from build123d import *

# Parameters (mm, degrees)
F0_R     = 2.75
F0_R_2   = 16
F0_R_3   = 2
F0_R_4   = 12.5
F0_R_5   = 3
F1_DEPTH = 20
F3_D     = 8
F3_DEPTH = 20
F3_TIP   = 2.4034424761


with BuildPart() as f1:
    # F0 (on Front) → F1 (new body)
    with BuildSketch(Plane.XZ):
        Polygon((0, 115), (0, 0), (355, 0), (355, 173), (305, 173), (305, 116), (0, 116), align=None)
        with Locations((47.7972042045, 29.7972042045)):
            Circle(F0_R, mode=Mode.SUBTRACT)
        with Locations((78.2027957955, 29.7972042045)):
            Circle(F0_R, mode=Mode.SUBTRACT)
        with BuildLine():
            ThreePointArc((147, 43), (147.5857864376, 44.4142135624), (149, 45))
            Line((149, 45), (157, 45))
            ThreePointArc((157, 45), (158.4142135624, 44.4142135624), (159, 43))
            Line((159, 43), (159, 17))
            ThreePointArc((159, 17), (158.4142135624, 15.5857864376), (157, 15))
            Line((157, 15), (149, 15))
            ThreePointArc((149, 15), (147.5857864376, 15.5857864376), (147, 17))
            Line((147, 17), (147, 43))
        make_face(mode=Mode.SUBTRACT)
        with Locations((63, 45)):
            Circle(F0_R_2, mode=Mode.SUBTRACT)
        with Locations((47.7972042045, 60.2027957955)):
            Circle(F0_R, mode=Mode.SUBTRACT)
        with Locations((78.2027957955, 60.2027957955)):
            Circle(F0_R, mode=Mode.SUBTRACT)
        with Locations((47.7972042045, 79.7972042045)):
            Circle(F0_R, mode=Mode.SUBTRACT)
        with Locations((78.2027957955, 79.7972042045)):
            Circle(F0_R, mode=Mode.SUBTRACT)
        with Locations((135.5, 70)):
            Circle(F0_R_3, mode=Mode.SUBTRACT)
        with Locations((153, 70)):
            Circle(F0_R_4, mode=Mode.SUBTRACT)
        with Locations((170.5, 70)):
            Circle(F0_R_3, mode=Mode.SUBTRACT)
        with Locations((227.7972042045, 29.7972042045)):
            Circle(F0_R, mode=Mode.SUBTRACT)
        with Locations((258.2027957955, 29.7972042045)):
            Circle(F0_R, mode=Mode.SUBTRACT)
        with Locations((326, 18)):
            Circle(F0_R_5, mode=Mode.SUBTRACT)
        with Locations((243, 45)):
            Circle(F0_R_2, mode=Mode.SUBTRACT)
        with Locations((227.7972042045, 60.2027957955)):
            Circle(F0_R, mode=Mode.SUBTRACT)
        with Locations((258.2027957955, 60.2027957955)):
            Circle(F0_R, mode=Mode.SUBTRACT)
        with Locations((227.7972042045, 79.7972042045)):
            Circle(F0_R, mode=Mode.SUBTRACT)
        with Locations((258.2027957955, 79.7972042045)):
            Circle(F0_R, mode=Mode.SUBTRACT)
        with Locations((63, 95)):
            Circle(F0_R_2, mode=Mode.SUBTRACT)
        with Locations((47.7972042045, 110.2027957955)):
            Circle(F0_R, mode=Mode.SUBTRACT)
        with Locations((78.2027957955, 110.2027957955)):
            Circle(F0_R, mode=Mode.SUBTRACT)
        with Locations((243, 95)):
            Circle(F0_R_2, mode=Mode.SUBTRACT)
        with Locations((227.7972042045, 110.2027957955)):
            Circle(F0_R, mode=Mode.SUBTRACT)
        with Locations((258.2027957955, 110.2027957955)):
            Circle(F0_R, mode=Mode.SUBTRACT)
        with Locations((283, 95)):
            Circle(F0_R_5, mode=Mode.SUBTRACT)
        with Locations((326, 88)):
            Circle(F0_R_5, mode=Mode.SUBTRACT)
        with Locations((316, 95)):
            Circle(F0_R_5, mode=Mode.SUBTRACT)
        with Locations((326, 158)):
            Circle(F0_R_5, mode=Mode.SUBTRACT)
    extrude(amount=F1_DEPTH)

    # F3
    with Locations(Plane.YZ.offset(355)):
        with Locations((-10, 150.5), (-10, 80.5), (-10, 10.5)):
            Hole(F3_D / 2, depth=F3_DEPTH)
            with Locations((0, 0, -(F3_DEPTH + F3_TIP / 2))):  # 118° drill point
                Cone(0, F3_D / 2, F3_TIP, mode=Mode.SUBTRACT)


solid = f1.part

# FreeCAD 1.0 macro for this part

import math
import FreeCAD as App
import Part
import Sketcher
from FreeCAD import Vector

doc = App.newDocument("Part")
params = doc.addObject("Spreadsheet::Sheet", "Params")
for row, (alias, value) in enumerate([
    ("sketch1_diameter", "32 mm"),
    ("sketch1_diameter2", "4 mm"),
    ("sketch1_diameter3", "25 mm"),
    ("sketch1_diameter4", "6 mm"),
    ("sketch1_diameter5", "5.5 mm"),
    ("pad1_length", "20 mm"),
    ("sketch2_diameter", "8 mm"),
    ("hole_diameter", "8 mm"),
    ("hole_depth", "20 mm"),
], start=1):
    params.set(f"A{row}", alias)
    params.set(f"B{row}", "=" + value)
    params.setAlias(f"B{row}", alias)

body = doc.addObject("PartDesign::Body", "Body")

# Sketch on XZ plane
sketch1 = body.newObject("Sketcher::SketchObject", "Sketch")
sketch1.AttachmentSupport = (doc.getObject("XZ_Plane"), [""])
sketch1.MapMode = "FlatFace"
sketch1.addGeometry(Part.LineSegment(Vector(0, 0, 0), Vector(355, 0, 0)), False)
sketch1.addGeometry(Part.LineSegment(Vector(355, 0, 0), Vector(355, 173, 0)), False)
sketch1.addGeometry(Part.LineSegment(Vector(355, 173, 0), Vector(305, 173, 0)), False)
sketch1.addGeometry(Part.LineSegment(Vector(305, 173, 0), Vector(305, 116, 0)), False)
sketch1.addGeometry(Part.LineSegment(Vector(305, 116, 0), Vector(0, 116, 0)), False)
sketch1.addGeometry(Part.LineSegment(Vector(0, 116, 0), Vector(0, 0, 0)), False)
sketch1.addGeometry(Part.Circle(Vector(47.797204, 29.797204, 0), Vector(0, 0, 1), 2.75), False)
sketch1.addGeometry(Part.Circle(Vector(78.202796, 29.797204, 0), Vector(0, 0, 1), 2.75), False)
sketch1.addGeometry(Part.Circle(Vector(63, 45, 0), Vector(0, 0, 1), 16), False)
sketch1.addGeometry(Part.LineSegment(Vector(147, 17, 0), Vector(147, 43, 0)), False)
sketch1.addGeometry(Part.ArcOfCircle(Part.Circle(Vector(149, 43, 0), Vector(0, 0, 1), 2), math.radians(90), math.radians(180)), False)
sketch1.addGeometry(Part.LineSegment(Vector(149, 45, 0), Vector(157, 45, 0)), False)
sketch1.addGeometry(Part.ArcOfCircle(Part.Circle(Vector(157, 43, 0), Vector(0, 0, 1), 2), math.radians(0), math.radians(90)), False)
sketch1.addGeometry(Part.LineSegment(Vector(159, 43, 0), Vector(159, 17, 0)), False)
sketch1.addGeometry(Part.ArcOfCircle(Part.Circle(Vector(157, 17, 0), Vector(0, 0, 1), 2), math.radians(-90), math.radians(0)), False)
sketch1.addGeometry(Part.LineSegment(Vector(157, 15, 0), Vector(149, 15, 0)), False)
sketch1.addGeometry(Part.ArcOfCircle(Part.Circle(Vector(149, 17, 0), Vector(0, 0, 1), 2), math.radians(180), math.radians(270)), False)
sketch1.addGeometry(Part.Circle(Vector(47.797204, 60.202796, 0), Vector(0, 0, 1), 2.75), False)
sketch1.addGeometry(Part.Circle(Vector(78.202796, 60.202796, 0), Vector(0, 0, 1), 2.75), False)
sketch1.addGeometry(Part.Circle(Vector(47.797204, 79.797204, 0), Vector(0, 0, 1), 2.75), False)
sketch1.addGeometry(Part.Circle(Vector(78.202796, 79.797204, 0), Vector(0, 0, 1), 2.75), False)
sketch1.addGeometry(Part.Circle(Vector(135.5, 70, 0), Vector(0, 0, 1), 2), False)
sketch1.addGeometry(Part.Circle(Vector(153, 70, 0), Vector(0, 0, 1), 12.5), False)
sketch1.addGeometry(Part.Circle(Vector(170.5, 70, 0), Vector(0, 0, 1), 2), False)
sketch1.addGeometry(Part.Circle(Vector(227.797204, 29.797204, 0), Vector(0, 0, 1), 2.75), False)
sketch1.addGeometry(Part.Circle(Vector(243, 45, 0), Vector(0, 0, 1), 16), False)
sketch1.addGeometry(Part.Circle(Vector(258.202796, 29.797204, 0), Vector(0, 0, 1), 2.75), False)
sketch1.addGeometry(Part.Circle(Vector(326, 18, 0), Vector(0, 0, 1), 3), False)
sketch1.addGeometry(Part.Circle(Vector(227.797204, 60.202796, 0), Vector(0, 0, 1), 2.75), False)
sketch1.addGeometry(Part.Circle(Vector(227.797204, 79.797204, 0), Vector(0, 0, 1), 2.75), False)
sketch1.addGeometry(Part.Circle(Vector(258.202796, 60.202796, 0), Vector(0, 0, 1), 2.75), False)
sketch1.addGeometry(Part.Circle(Vector(258.202796, 79.797204, 0), Vector(0, 0, 1), 2.75), False)
sketch1.addGeometry(Part.Circle(Vector(63, 95, 0), Vector(0, 0, 1), 16), False)
sketch1.addGeometry(Part.Circle(Vector(47.797204, 110.202796, 0), Vector(0, 0, 1), 2.75), False)
sketch1.addGeometry(Part.Circle(Vector(78.202796, 110.202796, 0), Vector(0, 0, 1), 2.75), False)
sketch1.addGeometry(Part.Circle(Vector(243, 95, 0), Vector(0, 0, 1), 16), False)
sketch1.addGeometry(Part.Circle(Vector(227.797204, 110.202796, 0), Vector(0, 0, 1), 2.75), False)
sketch1.addGeometry(Part.Circle(Vector(283, 95, 0), Vector(0, 0, 1), 3), False)
sketch1.addGeometry(Part.Circle(Vector(326, 88, 0), Vector(0, 0, 1), 3), False)
sketch1.addGeometry(Part.Circle(Vector(316, 95, 0), Vector(0, 0, 1), 3), False)
sketch1.addGeometry(Part.Circle(Vector(258.202796, 110.202796, 0), Vector(0, 0, 1), 2.75), False)
sketch1.addGeometry(Part.Circle(Vector(326, 158, 0), Vector(0, 0, 1), 3), False)
sketch1.addConstraint(Sketcher.Constraint("Coincident", 0, 2, 1, 1))
sketch1.addConstraint(Sketcher.Constraint("Coincident", 1, 2, 2, 1))
sketch1.addConstraint(Sketcher.Constraint("Coincident", 2, 2, 3, 1))
sketch1.addConstraint(Sketcher.Constraint("Coincident", 3, 2, 4, 1))
sketch1.addConstraint(Sketcher.Constraint("Coincident", 4, 2, 5, 1))
sketch1.addConstraint(Sketcher.Constraint("Coincident", 5, 2, 0, 1))
sketch1.addConstraint(Sketcher.Constraint("Tangent", 9, 2, 10, 2))
sketch1.addConstraint(Sketcher.Constraint("Tangent", 10, 1, 11, 1))
sketch1.addConstraint(Sketcher.Constraint("Tangent", 11, 2, 12, 2))
sketch1.addConstraint(Sketcher.Constraint("Tangent", 12, 1, 13, 1))
sketch1.addConstraint(Sketcher.Constraint("Tangent", 13, 2, 14, 2))
sketch1.addConstraint(Sketcher.Constraint("Tangent", 14, 1, 15, 1))
sketch1.addConstraint(Sketcher.Constraint("Tangent", 15, 2, 16, 2))
sketch1.addConstraint(Sketcher.Constraint("Tangent", 16, 1, 9, 1))
sketch1.addConstraint(Sketcher.Constraint("Horizontal", 0))
sketch1.addConstraint(Sketcher.Constraint("Vertical", 1))
sketch1.addConstraint(Sketcher.Constraint("Horizontal", 2))
sketch1.addConstraint(Sketcher.Constraint("Vertical", 3))
sketch1.addConstraint(Sketcher.Constraint("Horizontal", 4))
sketch1.addConstraint(Sketcher.Constraint("Vertical", 5))
sketch1.addConstraint(Sketcher.Constraint("Vertical", 9))
sketch1.addConstraint(Sketcher.Constraint("Horizontal", 11))
sketch1.addConstraint(Sketcher.Constraint("Vertical", 13))
sketch1.addConstraint(Sketcher.Constraint("Horizontal", 15))
sketch1.addConstraint(Sketcher.Constraint("Coincident", 5, 2, -1, 1))
sketch1.addConstraint(Sketcher.Constraint("Equal", 6, 7))
sketch1.addConstraint(Sketcher.Constraint("Equal", 10, 12))
sketch1.addConstraint(Sketcher.Constraint("Equal", 12, 14))
sketch1.addConstraint(Sketcher.Constraint("Equal", 14, 16))
sketch1.addConstraint(Sketcher.Constraint("Equal", 7, 17))
sketch1.addConstraint(Sketcher.Constraint("Equal", 17, 18))
sketch1.addConstraint(Sketcher.Constraint("Equal", 18, 19))
sketch1.addConstraint(Sketcher.Constraint("Equal", 19, 20))
sketch1.addConstraint(Sketcher.Constraint("Equal", 16, 21))
sketch1.addConstraint(Sketcher.Constraint("Equal", 21, 23))
sketch1.addConstraint(Sketcher.Constraint("Equal", 20, 24))
sketch1.addConstraint(Sketcher.Constraint("Equal", 8, 25))
sketch1.addConstraint(Sketcher.Constraint("Equal", 24, 26))
sketch1.addConstraint(Sketcher.Constraint("Equal", 26, 28))
sketch1.addConstraint(Sketcher.Constraint("Equal", 28, 29))
sketch1.addConstraint(Sketcher.Constraint("Equal", 29, 30))
sketch1.addConstraint(Sketcher.Constraint("Equal", 30, 31))
sketch1.addConstraint(Sketcher.Constraint("Equal", 25, 32))
sketch1.addConstraint(Sketcher.Constraint("Equal", 31, 33))
sketch1.addConstraint(Sketcher.Constraint("Equal", 33, 34))
sketch1.addConstraint(Sketcher.Constraint("Equal", 32, 35))
sketch1.addConstraint(Sketcher.Constraint("Equal", 34, 36))
sketch1.addConstraint(Sketcher.Constraint("Equal", 27, 37))
sketch1.addConstraint(Sketcher.Constraint("Equal", 37, 38))
sketch1.addConstraint(Sketcher.Constraint("Equal", 38, 39))
sketch1.addConstraint(Sketcher.Constraint("Equal", 36, 40))
sketch1.addConstraint(Sketcher.Constraint("Equal", 39, 41))
sketch1.addConstraint(Sketcher.Constraint("Horizontal", 6, 3, 7, 3))
sketch1.addConstraint(Sketcher.Constraint("Horizontal", 17, 3, 18, 3))
sketch1.addConstraint(Sketcher.Constraint("Horizontal", 19, 3, 20, 3))
sketch1.addConstraint(Sketcher.Constraint("Horizontal", 21, 3, 22, 3))
sketch1.addConstraint(Sketcher.Constraint("Horizontal", 22, 3, 23, 3))
sketch1.addConstraint(Sketcher.Constraint("Horizontal", 7, 3, 24, 3))
sketch1.addConstraint(Sketcher.Constraint("Horizontal", 8, 3, 25, 3))
sketch1.addConstraint(Sketcher.Constraint("Horizontal", 24, 3, 26, 3))
sketch1.addConstraint(Sketcher.Constraint("Horizontal", 18, 3, 28, 3))
sketch1.addConstraint(Sketcher.Constraint("Horizontal", 20, 3, 29, 3))
sketch1.addConstraint(Sketcher.Constraint("Horizontal", 28, 3, 30, 3))
sketch1.addConstraint(Sketcher.Constraint("Horizontal", 29, 3, 31, 3))
sketch1.addConstraint(Sketcher.Constraint("Horizontal", 33, 3, 34, 3))
sketch1.addConstraint(Sketcher.Constraint("Horizontal", 32, 3, 35, 3))
sketch1.addConstraint(Sketcher.Constraint("Horizontal", 34, 3, 36, 3))
sketch1.addConstraint(Sketcher.Constraint("Horizontal", 35, 3, 37, 3))
sketch1.addConstraint(Sketcher.Constraint("Horizontal", 37, 3, 39, 3))
sketch1.addConstraint(Sketcher.Constraint("Horizontal", 36, 3, 40, 3))
sketch1.addConstraint(Sketcher.Constraint("Horizontal", 25, 3, 10, 1))
sketch1.addConstraint(Sketcher.Constraint("Vertical", 6, 3, 17, 3))
sketch1.addConstraint(Sketcher.Constraint("Vertical", 7, 3, 18, 3))
sketch1.addConstraint(Sketcher.Constraint("Vertical", 17, 3, 19, 3))
sketch1.addConstraint(Sketcher.Constraint("Vertical", 18, 3, 20, 3))
sketch1.addConstraint(Sketcher.Constraint("Vertical", 24, 3, 28, 3))
sketch1.addConstraint(Sketcher.Constraint("Vertical", 28, 3, 29, 3))
sketch1.addConstraint(Sketcher.Constraint("Vertical", 26, 3, 30, 3))
sketch1.addConstraint(Sketcher.Constraint("Vertical", 30, 3, 31, 3))
sketch1.addConstraint(Sketcher.Constraint("Vertical", 8, 3, 32, 3))
sketch1.addConstraint(Sketcher.Constraint("Vertical", 19, 3, 33, 3))
sketch1.addConstraint(Sketcher.Constraint("Vertical", 20, 3, 34, 3))
sketch1.addConstraint(Sketcher.Constraint("Vertical", 25, 3, 35, 3))
sketch1.addConstraint(Sketcher.Constraint("Vertical", 29, 3, 36, 3))
sketch1.addConstraint(Sketcher.Constraint("Vertical", 27, 3, 38, 3))
sketch1.addConstraint(Sketcher.Constraint("Vertical", 31, 3, 40, 3))
sketch1.addConstraint(Sketcher.Constraint("Vertical", 38, 3, 41, 3))
sketch1.addConstraint(Sketcher.Constraint("Diameter", 8, 32.0))
sketch1.addConstraint(Sketcher.Constraint("Diameter", 21, 4.0))
sketch1.addConstraint(Sketcher.Constraint("Diameter", 22, 25.0))
sketch1.addConstraint(Sketcher.Constraint("Diameter", 27, 6.0))
sketch1.addConstraint(Sketcher.Constraint("Diameter", 6, 5.5))
sketch1.addConstraint(Sketcher.Constraint("DistanceX", 0, 1, 0, 2, 355.0))
sketch1.addConstraint(Sketcher.Constraint("DistanceX", 2, 2, 2, 1, 50.0))
sketch1.addConstraint(Sketcher.Constraint("DistanceX", 11, 1, 11, 2, 8.0))
sketch1.addConstraint(Sketcher.Constraint("DistanceY", 1, 1, 1, 2, 173.0))
sketch1.addConstraint(Sketcher.Constraint("DistanceY", 3, 2, 3, 1, 57.0))
sketch1.addConstraint(Sketcher.Constraint("DistanceY", 9, 1, 9, 2, 26.0))
sketch1.addConstraint(Sketcher.Constraint("DistanceX", -1, 1, 8, 3, 63.0))
sketch1.addConstraint(Sketcher.Constraint("DistanceY", -1, 1, 8, 3, 45.0))
sketch1.addConstraint(Sketcher.Constraint("DistanceX", -1, 1, 10, 3, 149.0))
sketch1.addConstraint(Sketcher.Constraint("DistanceY", -1, 1, 21, 3, 70.0))
sketch1.addConstraint(Sketcher.Constraint("DistanceX", -1, 1, 22, 3, 153.0))
sketch1.addConstraint(Sketcher.Constraint("DistanceX", -1, 1, 25, 3, 243.0))
sketch1.addConstraint(Sketcher.Constraint("DistanceX", -1, 1, 27, 3, 326.0))
sketch1.addConstraint(Sketcher.Constraint("DistanceY", -1, 1, 27, 3, 18.0))
sketch1.addConstraint(Sketcher.Constraint("DistanceY", -1, 1, 32, 3, 95.0))
sketch1.addConstraint(Sketcher.Constraint("DistanceX", -1, 1, 37, 3, 283.0))
sketch1.addConstraint(Sketcher.Constraint("DistanceY", -1, 1, 38, 3, 88.0))
sketch1.addConstraint(Sketcher.Constraint("DistanceX", -1, 1, 39, 3, 316.0))
sketch1.addConstraint(Sketcher.Constraint("DistanceY", -1, 1, 41, 3, 158.0))
sketch1.addConstraint(Sketcher.Constraint("DistanceY", 6, 3, 19, 3, 50.0))
sketch1.addConstraint(Sketcher.Constraint("DistanceX", 21, 3, 23, 3, 35.0))
sketch1.addConstraint(Sketcher.Constraint("DistanceY", 17, 3, 33, 3, 50.0))
sketch1.addConstraint(Sketcher.Constraint("DistanceX", -1, 1, 21, 3, 135.5))
sketch1.addConstraint(Sketcher.Constraint("DistanceX", 6, 3, 7, 3, 30.405592))
sketch1.addConstraint(Sketcher.Constraint("DistanceY", 6, 3, 17, 3, 30.405592))
sketch1.addConstraint(Sketcher.Constraint("DistanceX", 24, 3, 26, 3, 30.405592))
sketch1.addConstraint(Sketcher.Constraint("DistanceX", -1, 1, 6, 3, 47.797204))
sketch1.addConstraint(Sketcher.Constraint("DistanceY", -1, 1, 6, 3, 29.797204))
sketch1.addConstraint(Sketcher.Constraint("DistanceX", -1, 1, 24, 3, 227.797204))
sketch1.setExpression("Constraints[87]", "Params.sketch1_diameter")
sketch1.setExpression("Constraints[88]", "Params.sketch1_diameter2")
sketch1.setExpression("Constraints[89]", "Params.sketch1_diameter3")
sketch1.setExpression("Constraints[90]", "Params.sketch1_diameter4")
sketch1.setExpression("Constraints[91]", "Params.sketch1_diameter5")
pad1 = body.newObject("PartDesign::Pad", "Pad")
pad1.Profile = sketch1
pad1.setExpression("Length", "Params.pad1_length")

# Sketch on YZ plane
sketch2 = body.newObject("Sketcher::SketchObject", "Sketch001")
sketch2.AttachmentSupport = (doc.getObject("YZ_Plane"), [""])
sketch2.MapMode = "FlatFace"
sketch2.AttachmentOffset = App.Placement(Vector(0, 0, 355), App.Rotation())
sketch2.addGeometry(Part.Circle(Vector(-10, 150.5, 0), Vector(0, 0, 1), 4), False)
sketch2.addGeometry(Part.Circle(Vector(-10, 80.5, 0), Vector(0, 0, 1), 4), False)
sketch2.addGeometry(Part.Circle(Vector(-10, 10.5, 0), Vector(0, 0, 1), 4), False)
sketch2.addConstraint(Sketcher.Constraint("Equal", 0, 1))
sketch2.addConstraint(Sketcher.Constraint("Equal", 1, 2))
sketch2.addConstraint(Sketcher.Constraint("Vertical", 0, 3, 1, 3))
sketch2.addConstraint(Sketcher.Constraint("Vertical", 1, 3, 2, 3))
sketch2.addConstraint(Sketcher.Constraint("Diameter", 0, 8.0))
sketch2.addConstraint(Sketcher.Constraint("DistanceX", 0, 3, -1, 1, 10.0))
sketch2.addConstraint(Sketcher.Constraint("DistanceY", 1, 3, 0, 3, 70.0))
sketch2.addConstraint(Sketcher.Constraint("DistanceY", 2, 3, 1, 3, 70.0))
sketch2.addConstraint(Sketcher.Constraint("DistanceY", -1, 1, 0, 3, 150.5))
sketch2.setExpression("Constraints[4]", "Params.sketch2_diameter")
doc.recompute()
hole = body.newObject("PartDesign::Hole", "Hole")
hole.Profile = sketch2
hole.ThreadType = "None"
hole.setExpression("Diameter", "Params.hole_diameter")
hole.DepthType = "Dimension"
hole.setExpression("Depth", "Params.hole_depth")
hole.DrillPoint = "Angled"
hole.DrillPointAngle = 118

doc.recompute()
